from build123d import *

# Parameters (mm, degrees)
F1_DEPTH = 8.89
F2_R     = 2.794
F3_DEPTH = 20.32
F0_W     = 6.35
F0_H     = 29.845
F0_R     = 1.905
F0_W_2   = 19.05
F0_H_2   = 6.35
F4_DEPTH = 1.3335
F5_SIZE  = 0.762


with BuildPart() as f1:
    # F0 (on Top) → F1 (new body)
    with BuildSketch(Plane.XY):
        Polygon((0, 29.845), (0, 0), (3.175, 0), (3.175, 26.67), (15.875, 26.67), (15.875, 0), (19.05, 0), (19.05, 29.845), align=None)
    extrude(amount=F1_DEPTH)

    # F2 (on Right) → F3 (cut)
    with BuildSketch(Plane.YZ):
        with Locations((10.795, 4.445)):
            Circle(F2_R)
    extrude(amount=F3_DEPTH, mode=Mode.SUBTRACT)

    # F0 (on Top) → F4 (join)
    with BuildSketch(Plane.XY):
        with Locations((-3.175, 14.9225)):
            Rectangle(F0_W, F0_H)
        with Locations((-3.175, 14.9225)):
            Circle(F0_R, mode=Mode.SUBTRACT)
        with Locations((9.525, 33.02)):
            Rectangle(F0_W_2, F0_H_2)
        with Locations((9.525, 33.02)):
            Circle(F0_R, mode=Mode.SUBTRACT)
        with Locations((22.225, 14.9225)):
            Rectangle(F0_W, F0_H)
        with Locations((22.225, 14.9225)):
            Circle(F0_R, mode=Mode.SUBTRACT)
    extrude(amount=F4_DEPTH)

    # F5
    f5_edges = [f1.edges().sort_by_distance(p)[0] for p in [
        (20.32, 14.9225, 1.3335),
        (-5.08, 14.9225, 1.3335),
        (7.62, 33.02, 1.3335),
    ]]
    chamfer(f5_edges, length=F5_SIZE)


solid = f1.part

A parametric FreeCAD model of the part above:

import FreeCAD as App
import Part
import Sketcher
from FreeCAD import Vector
Q = App.Units.Quantity


def edges_at(feature, points):
    """Names of the edges that pass closest to the given points."""
    edges = feature.Shape.Edges
    near = lambda p: min(range(len(edges)), key=lambda i: edges[i].distToShape(Part.Vertex(*p))[0])
    return sorted({f"Edge{near(p) + 1}" for p in points})


def add_polygon(sketch, points):
    """Adds a closed chain of lines whose ends are joined by coincident constraints."""
    first, n = sketch.GeometryCount, len(points)
    for a, b in zip(points, points[1:] + points[:1]):
        sketch.addGeometry(Part.LineSegment(App.Vector(*a, 0), App.Vector(*b, 0)), False)
    for i in range(n):
        sketch.addConstraint(Sketcher.Constraint("Coincident", first + i, 2, first + (i + 1) % n, 1))

doc = App.newDocument("Part")
body = doc.addObject("PartDesign::Body", "Body")

sketch1 = body.newObject("Sketcher::SketchObject", "Sketch")
sketch1.AttachmentSupport = (doc.getObject("XY_Plane"), [""])
sketch1.MapMode = "FlatFace"
add_polygon(sketch1, [(0, 29.8), (0, 0), (3.2, 0), (3.2, 26.7), (15.9, 26.7), (15.9, 0), (19.1, 0), (19.1, 29.8)])
sketch1.addConstraint(Sketcher.Constraint("Vertical", 0))
sketch1.addConstraint(Sketcher.Constraint("Horizontal", 1))
sketch1.addConstraint(Sketcher.Constraint("Vertical", 2))
sketch1.addConstraint(Sketcher.Constraint("Horizontal", 3))
sketch1.addConstraint(Sketcher.Constraint("Vertical", 4))
sketch1.addConstraint(Sketcher.Constraint("Horizontal", 5))
sketch1.addConstraint(Sketcher.Constraint("Vertical", 6))
sketch1.addConstraint(Sketcher.Constraint("Horizontal", 7))
sketch1.addConstraint(Sketcher.Constraint("Coincident", 0, 2, -1, 1))
sketch1.addConstraint(Sketcher.Constraint("PointOnObject", 4, 2, -1))
sketch1.addConstraint(Sketcher.Constraint("Equal", 1, 5))
sketch1.addConstraint(Sketcher.Constraint("DistanceX", 3, 1, 3, 2, Q("0.5 in")))
sketch1.addConstraint(Sketcher.Constraint("DistanceX", 7, 2, 7, 1, Q("0.75 in")))
sketch1.addConstraint(Sketcher.Constraint("DistanceY", 2, 1, 2, 2, Q("1.05 in")))
sketch1.addConstraint(Sketcher.Constraint("DistanceY", 0, 2, 0, 1, Q("1.175 in")))
pad1 = body.newObject("PartDesign::Pad", "Pad")
pad1.Profile = sketch1
pad1.Length = Q("0.35 in")

sketch2 = body.newObject("Sketcher::SketchObject", "Sketch001")
sketch2.AttachmentSupport = (doc.getObject("YZ_Plane"), [""])
sketch2.MapMode = "FlatFace"
sketch2.addGeometry(Part.Circle(Vector(10.8, 4.4, 0), Vector(0, 0, 1), 2.8), False)
sketch2.addConstraint(Sketcher.Constraint("Diameter", 0, Q("0.22 in")))
sketch2.addConstraint(Sketcher.Constraint("DistanceX", -1, 1, 0, 3, Q("0.425 in")))
sketch2.addConstraint(Sketcher.Constraint("DistanceY", -1, 1, 0, 3, Q("0.175 in")))
pocket1 = body.newObject("PartDesign::Pocket", "Pocket")
pocket1.Profile = sketch2
pocket1.Length = Q("0.8 in")
pocket1.Reversed = True

sketch3 = body.newObject("Sketcher::SketchObject", "Sketch002")
sketch3.AttachmentSupport = (doc.getObject("XY_Plane"), [""])
sketch3.MapMode = "FlatFace"
add_polygon(sketch3, [(-6.3, 29.8), (-6.3, 0), (0, 0), (0, 29.8)])
sketch3.addGeometry(Part.Circle(Vector(-3.2, 14.9, 0), Vector(0, 0, 1), 1.9), False)
add_polygon(sketch3, [(0, 36.2), (0, 29.8), (19.1, 29.8), (19.1, 36.2)])
sketch3.addGeometry(Part.Circle(Vector(9.5, 33, 0), Vector(0, 0, 1), 1.9), False)
add_polygon(sketch3, [(19.1, 29.8), (19.1, 0), (25.4, 0), (25.4, 29.8)])
sketch3.addGeometry(Part.Circle(Vector(22.2, 14.9, 0), Vector(0, 0, 1), 1.9), False)
sketch3.addConstraint(Sketcher.Constraint("Vertical", 0))
sketch3.addConstraint(Sketcher.Constraint("Horizontal", 1))
sketch3.addConstraint(Sketcher.Constraint("Vertical", 2))
sketch3.addConstraint(Sketcher.Constraint("Horizontal", 3))
sketch3.addConstraint(Sketcher.Constraint("Vertical", 5))
sketch3.addConstraint(Sketcher.Constraint("Horizontal", 6))
sketch3.addConstraint(Sketcher.Constraint("Vertical", 7))
sketch3.addConstraint(Sketcher.Constraint("Horizontal", 8))
sketch3.addConstraint(Sketcher.Constraint("Vertical", 10))
sketch3.addConstraint(Sketcher.Constraint("Horizontal", 11))
sketch3.addConstraint(Sketcher.Constraint("Vertical", 12))
sketch3.addConstraint(Sketcher.Constraint("Horizontal", 13))
sketch3.addConstraint(Sketcher.Constraint("Coincident", 1, 2, -1, 1))
sketch3.addConstraint(Sketcher.Constraint("Coincident", 5, 2, 2, 2))
sketch3.addConstraint(Sketcher.Constraint("Coincident", 13, 2, 6, 2))
sketch3.addConstraint(Sketcher.Constraint("Equal", 4, 9))
sketch3.addConstraint(Sketcher.Constraint("Equal", 9, 14))
sketch3.addConstraint(Sketcher.Constraint("PointOnObject", 10, 2, -1))
sketch3.addConstraint(Sketcher.Constraint("Horizontal", 4, 3, 14, 3))
sketch3.addConstraint(Sketcher.Constraint("Equal", 3, 11))
sketch3.addConstraint(Sketcher.Constraint("Equal", 13, 5))
sketch3.addConstraint(Sketcher.Constraint("Diameter", 4, Q("0.15 in")))
sketch3.addConstraint(Sketcher.Constraint("DistanceX", -1, 1, 11, 2, Q("1 in")))
sketch3.addConstraint(Sketcher.Constraint("DistanceX", 4, 3, 14, 3, Q("1 in")))
sketch3.addConstraint(Sketcher.Constraint("DistanceX", 1, 1, 1, 2, Q("0.25 in")))
sketch3.addConstraint(Sketcher.Constraint("DistanceY", -1, 1, 9, 3, Q("1.3 in")))
sketch3.addConstraint(Sketcher.Constraint("DistanceX", 4, 3, 9, 3, Q("0.5 in")))
sketch3.addConstraint(Sketcher.Constraint("DistanceY", 0, 2, 0, 1, Q("1.175 in")))
sketch3.addConstraint(Sketcher.Constraint("DistanceX", 4, 3, -1, 1, Q("0.125 in")))
sketch3.addConstraint(Sketcher.Constraint("DistanceY", -1, 1, 4, 3, Q("0.5875 in")))
pad2 = body.newObject("PartDesign::Pad", "Pad001")
pad2.Profile = sketch3
pad2.Length = Q("0.0525 in")
doc.recompute()

chamfer = body.newObject("PartDesign::Chamfer", "Chamfer")
chamfer.Base = (pad2, edges_at(pad2, [(20.32, 14.922, 1.333), (-5.08, 14.922, 1.333), (7.62, 33.02, 1.333)]))
chamfer.Size = Q("0.03 in")

doc.recompute()
